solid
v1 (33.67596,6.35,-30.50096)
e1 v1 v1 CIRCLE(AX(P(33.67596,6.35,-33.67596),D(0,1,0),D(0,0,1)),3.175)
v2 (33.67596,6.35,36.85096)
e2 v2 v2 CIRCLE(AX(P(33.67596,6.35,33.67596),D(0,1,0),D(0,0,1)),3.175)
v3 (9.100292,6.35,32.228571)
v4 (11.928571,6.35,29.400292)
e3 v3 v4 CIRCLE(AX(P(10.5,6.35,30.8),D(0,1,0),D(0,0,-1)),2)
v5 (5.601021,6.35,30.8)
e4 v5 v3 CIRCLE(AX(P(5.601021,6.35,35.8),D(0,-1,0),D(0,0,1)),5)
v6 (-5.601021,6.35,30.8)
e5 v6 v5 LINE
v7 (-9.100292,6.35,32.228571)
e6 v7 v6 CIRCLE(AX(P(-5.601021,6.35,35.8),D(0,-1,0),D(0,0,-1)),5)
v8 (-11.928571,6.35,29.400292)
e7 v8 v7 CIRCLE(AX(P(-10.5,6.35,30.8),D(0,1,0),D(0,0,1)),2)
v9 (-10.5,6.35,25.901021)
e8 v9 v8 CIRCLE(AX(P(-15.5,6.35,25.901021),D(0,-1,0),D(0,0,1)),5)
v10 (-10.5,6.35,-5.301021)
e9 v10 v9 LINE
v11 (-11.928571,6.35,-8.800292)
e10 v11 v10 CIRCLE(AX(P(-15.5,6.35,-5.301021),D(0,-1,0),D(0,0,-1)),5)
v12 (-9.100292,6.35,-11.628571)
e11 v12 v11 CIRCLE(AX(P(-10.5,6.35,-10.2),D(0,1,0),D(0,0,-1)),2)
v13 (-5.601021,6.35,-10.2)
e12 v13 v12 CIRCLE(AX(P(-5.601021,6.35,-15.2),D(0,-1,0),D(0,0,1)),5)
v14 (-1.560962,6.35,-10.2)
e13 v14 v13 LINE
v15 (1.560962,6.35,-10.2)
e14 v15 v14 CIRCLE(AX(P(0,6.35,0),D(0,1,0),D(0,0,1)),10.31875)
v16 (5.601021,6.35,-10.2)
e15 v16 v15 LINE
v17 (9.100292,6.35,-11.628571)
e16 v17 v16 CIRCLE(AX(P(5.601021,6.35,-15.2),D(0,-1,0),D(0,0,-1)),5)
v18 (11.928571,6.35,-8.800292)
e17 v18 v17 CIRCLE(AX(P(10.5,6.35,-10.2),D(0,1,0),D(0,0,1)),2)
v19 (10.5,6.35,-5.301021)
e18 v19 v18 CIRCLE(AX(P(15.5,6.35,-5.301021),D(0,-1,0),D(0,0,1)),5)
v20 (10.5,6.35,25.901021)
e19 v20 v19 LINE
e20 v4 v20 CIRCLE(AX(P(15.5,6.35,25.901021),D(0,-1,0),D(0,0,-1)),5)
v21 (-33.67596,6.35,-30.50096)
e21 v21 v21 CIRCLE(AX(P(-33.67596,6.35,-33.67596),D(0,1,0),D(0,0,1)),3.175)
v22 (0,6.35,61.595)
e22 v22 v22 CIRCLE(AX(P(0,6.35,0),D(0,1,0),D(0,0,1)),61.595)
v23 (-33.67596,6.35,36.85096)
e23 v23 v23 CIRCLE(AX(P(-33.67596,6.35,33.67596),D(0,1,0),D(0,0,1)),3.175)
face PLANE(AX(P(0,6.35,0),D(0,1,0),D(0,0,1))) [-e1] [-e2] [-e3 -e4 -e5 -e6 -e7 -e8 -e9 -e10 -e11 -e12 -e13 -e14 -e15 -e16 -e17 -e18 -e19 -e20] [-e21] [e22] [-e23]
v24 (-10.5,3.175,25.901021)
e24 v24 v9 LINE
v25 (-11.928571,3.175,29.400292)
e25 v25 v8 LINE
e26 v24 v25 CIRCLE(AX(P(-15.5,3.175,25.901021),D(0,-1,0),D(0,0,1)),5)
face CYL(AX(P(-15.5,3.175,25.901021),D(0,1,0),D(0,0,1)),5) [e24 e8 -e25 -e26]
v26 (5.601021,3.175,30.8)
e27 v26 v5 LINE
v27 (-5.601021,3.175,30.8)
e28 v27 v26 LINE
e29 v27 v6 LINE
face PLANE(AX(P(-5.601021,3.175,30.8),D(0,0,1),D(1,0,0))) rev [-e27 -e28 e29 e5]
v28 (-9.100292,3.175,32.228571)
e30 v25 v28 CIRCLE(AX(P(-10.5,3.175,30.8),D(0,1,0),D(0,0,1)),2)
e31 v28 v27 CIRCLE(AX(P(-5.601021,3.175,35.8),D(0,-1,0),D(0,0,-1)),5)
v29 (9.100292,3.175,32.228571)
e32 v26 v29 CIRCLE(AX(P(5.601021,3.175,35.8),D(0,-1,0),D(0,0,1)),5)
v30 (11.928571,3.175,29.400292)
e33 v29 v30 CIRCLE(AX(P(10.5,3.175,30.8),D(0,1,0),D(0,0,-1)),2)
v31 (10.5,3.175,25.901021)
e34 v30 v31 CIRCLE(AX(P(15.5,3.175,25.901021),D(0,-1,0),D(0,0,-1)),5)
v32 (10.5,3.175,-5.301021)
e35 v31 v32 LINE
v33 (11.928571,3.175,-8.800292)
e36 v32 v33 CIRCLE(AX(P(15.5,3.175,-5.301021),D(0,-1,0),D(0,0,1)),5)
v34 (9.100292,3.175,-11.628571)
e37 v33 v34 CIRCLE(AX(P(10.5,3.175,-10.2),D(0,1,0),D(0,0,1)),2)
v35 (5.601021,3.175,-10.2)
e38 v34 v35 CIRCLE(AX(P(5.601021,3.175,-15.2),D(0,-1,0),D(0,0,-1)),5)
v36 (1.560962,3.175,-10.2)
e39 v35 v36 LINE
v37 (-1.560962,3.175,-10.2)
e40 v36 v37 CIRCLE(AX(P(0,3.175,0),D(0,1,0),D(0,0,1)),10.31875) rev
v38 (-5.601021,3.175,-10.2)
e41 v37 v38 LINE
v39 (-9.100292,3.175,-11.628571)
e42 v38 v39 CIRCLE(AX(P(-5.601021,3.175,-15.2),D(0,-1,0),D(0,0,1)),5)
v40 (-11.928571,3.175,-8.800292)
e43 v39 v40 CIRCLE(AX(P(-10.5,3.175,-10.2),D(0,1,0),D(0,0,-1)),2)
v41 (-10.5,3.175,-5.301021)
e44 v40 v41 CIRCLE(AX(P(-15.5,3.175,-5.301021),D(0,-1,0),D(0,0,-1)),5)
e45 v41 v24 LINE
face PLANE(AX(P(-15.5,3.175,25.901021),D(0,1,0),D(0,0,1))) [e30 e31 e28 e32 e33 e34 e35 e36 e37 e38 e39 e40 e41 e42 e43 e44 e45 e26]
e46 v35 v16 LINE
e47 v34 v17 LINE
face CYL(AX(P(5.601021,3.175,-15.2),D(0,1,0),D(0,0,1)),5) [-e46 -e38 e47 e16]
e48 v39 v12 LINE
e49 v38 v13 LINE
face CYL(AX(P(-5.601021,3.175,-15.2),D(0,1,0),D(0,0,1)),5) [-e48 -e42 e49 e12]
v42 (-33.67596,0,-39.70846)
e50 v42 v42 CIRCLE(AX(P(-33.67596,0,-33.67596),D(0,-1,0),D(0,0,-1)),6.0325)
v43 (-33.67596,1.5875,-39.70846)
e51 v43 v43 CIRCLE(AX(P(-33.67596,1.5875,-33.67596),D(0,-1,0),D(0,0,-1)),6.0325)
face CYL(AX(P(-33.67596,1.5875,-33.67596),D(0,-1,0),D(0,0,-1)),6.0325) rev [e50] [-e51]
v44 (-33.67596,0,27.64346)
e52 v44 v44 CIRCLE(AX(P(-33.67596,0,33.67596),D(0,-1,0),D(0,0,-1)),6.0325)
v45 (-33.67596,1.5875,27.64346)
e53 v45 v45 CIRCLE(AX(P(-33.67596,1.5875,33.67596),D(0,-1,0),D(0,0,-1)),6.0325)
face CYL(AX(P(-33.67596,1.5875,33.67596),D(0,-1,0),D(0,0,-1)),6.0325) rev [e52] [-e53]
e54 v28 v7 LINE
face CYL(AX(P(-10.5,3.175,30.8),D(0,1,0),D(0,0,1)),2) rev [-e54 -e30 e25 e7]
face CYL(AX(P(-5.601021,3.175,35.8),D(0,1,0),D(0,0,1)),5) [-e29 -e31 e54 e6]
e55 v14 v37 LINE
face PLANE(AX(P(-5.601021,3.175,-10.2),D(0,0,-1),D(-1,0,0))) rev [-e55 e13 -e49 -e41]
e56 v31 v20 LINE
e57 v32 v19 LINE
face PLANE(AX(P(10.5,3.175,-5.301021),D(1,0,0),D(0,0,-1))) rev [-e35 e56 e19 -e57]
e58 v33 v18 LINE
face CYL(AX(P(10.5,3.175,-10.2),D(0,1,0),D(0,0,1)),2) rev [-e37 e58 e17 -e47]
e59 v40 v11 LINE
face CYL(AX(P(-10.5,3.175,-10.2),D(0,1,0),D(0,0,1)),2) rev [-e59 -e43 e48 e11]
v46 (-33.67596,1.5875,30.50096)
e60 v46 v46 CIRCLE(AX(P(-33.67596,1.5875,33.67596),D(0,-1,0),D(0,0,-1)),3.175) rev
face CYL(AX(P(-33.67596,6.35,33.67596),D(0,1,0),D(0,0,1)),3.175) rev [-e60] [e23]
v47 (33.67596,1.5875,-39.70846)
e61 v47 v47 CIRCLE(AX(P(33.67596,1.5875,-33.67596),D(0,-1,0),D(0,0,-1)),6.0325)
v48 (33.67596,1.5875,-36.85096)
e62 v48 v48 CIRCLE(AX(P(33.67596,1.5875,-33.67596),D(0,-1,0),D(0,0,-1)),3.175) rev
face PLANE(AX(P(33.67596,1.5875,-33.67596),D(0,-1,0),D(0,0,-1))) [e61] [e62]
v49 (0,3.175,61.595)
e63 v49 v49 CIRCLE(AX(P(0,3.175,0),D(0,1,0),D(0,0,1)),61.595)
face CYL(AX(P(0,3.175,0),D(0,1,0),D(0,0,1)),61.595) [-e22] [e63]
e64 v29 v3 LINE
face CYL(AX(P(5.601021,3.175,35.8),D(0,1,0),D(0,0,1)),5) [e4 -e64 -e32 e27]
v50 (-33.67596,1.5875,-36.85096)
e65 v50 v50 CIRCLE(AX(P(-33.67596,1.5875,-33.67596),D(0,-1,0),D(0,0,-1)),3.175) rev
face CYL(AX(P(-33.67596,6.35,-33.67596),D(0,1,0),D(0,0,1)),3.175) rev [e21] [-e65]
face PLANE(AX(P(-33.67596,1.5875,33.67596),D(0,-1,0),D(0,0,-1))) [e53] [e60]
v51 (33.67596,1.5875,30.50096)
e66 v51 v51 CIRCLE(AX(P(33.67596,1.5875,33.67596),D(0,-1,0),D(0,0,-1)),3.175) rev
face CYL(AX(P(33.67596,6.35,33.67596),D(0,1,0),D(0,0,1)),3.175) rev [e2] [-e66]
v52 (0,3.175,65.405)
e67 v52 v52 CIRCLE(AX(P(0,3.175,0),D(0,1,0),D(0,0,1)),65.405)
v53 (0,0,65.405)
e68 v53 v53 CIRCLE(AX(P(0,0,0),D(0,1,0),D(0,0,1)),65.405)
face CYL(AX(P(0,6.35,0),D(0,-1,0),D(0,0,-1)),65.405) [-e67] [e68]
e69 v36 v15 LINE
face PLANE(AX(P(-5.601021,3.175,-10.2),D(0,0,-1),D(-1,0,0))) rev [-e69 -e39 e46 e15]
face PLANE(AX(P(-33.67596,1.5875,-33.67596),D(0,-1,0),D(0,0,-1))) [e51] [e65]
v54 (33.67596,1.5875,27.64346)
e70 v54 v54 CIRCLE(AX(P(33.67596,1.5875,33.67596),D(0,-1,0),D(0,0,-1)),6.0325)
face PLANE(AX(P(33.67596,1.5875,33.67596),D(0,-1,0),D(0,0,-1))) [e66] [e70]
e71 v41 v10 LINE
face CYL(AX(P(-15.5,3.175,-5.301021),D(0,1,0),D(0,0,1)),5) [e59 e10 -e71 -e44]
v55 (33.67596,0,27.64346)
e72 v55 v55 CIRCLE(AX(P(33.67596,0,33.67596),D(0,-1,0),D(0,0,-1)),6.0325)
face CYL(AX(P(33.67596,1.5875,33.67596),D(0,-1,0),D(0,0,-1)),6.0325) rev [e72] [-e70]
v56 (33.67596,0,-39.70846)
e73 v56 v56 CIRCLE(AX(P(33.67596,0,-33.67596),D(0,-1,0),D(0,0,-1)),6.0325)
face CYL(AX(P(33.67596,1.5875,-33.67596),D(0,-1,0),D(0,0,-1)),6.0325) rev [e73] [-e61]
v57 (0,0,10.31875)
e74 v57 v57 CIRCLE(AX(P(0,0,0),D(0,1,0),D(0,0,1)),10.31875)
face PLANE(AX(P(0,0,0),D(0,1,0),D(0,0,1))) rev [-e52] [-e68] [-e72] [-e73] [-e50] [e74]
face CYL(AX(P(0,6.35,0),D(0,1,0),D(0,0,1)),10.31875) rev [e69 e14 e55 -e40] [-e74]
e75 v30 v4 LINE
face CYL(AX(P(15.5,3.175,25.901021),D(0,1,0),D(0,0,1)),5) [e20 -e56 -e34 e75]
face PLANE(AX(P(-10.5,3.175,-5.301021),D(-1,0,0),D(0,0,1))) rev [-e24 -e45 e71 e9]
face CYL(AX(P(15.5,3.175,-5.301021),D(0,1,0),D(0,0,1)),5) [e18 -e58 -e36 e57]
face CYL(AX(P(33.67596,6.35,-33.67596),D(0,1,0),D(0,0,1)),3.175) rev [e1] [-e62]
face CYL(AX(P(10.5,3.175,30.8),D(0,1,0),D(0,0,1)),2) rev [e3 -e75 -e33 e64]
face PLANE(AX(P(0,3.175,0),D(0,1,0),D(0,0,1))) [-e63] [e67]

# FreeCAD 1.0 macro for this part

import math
import FreeCAD as App
import Part
import Sketcher

V = App.Vector
Q = App.Units.Quantity

doc = App.newDocument("Part")
body = doc.addObject("PartDesign::Body", "Body")

# Sketch on XZ plane
sketch1 = body.newObject("Sketcher::SketchObject", "Sketch")
sketch1.AttachmentSupport = (doc.getObject("XZ_Plane"), [""])
sketch1.MapMode = "FlatFace"
sketch1.addGeometry(Part.Circle(V(0, 0, 0), V(0, 0, 1), 65.405), False)
sketch1.addConstraint(Sketcher.Constraint("Coincident", 0, 3, -1, 1))
sketch1.addConstraint(Sketcher.Constraint("Diameter", 0, Q("5.15 in")))
pad1 = body.newObject("PartDesign::Pad", "Pad")
pad1.Profile = sketch1
pad1.Length = Q("0.25 in")
pad1.Reversed = True

# Sketch on XZ plane
sketch2 = body.newObject("Sketcher::SketchObject", "Sketch001")
sketch2.AttachmentSupport = (doc.getObject("XZ_Plane"), [""])
sketch2.MapMode = "FlatFace"
sketch2.AttachmentOffset = App.Placement(V(0, 0, -0.25 * 25.4), App.Rotation())
sketch2.addGeometry(Part.Circle(V(0, 0, 0), V(0, 0, 1), 65.405), False)
sketch2.addGeometry(Part.Circle(V(0, 0, 0), V(0, 0, 1), 61.595), False)
sketch2.addConstraint(Sketcher.Constraint("Coincident", 0, 3, -1, 1))
sketch2.addConstraint(Sketcher.Constraint("Coincident", 1, 3, -1, 1))
sketch2.addConstraint(Sketcher.Constraint("Diameter", 0, Q("5.15 in")))
sketch2.addConstraint(Sketcher.Constraint("Diameter", 1, Q("4.85 in")))
pocket1 = body.newObject("PartDesign::Pocket", "Pocket")
pocket1.Profile = sketch2
pocket1.Length = Q("0.125 in")
pocket1.Reversed = True

# Sketch on XZ plane
sketch3 = body.newObject("Sketcher::SketchObject", "Sketch002")
sketch3.AttachmentSupport = (doc.getObject("XZ_Plane"), [""])
sketch3.MapMode = "FlatFace"
sketch3.AttachmentOffset = App.Placement(V(0, 0, -0.25 * 25.4), App.Rotation())
sketch3.addGeometry(Part.Circle(V(-33.67596, -33.67596, 0), V(0, 0, 1), 3.175), False)
sketch3.addGeometry(Part.Circle(V(-33.67596, 33.67596, 0), V(0, 0, 1), 3.175), False)
sketch3.addGeometry(Part.Circle(V(33.67596, -33.67596, 0), V(0, 0, 1), 3.175), False)
sketch3.addGeometry(Part.Circle(V(33.67596, 33.67596, 0), V(0, 0, 1), 3.175), False)
sketch3.addConstraint(Sketcher.Constraint("Equal", 0, 1))
sketch3.addConstraint(Sketcher.Constraint("Equal", 1, 2))
sketch3.addConstraint(Sketcher.Constraint("Equal", 2, 3))
sketch3.addConstraint(Sketcher.Constraint("Symmetric", 1, 3, 2, 3, -1, 1))
sketch3.addConstraint(Sketcher.Constraint("Symmetric", 0, 3, 3, 3, -1, 1))
sketch3.addConstraint(Sketcher.Constraint("Symmetric", 0, 3, 2, 3, -2))
sketch3.addConstraint(Sketcher.Constraint("Diameter", 0, Q("0.25 in")))
sketch3.addConstraint(Sketcher.Constraint("DistanceX", 0, 3, -1, 1, 33.67596))
sketch3.addConstraint(Sketcher.Constraint("DistanceY", 0, 3, -1, 1, 33.67596))
doc.recompute()
hole = body.newObject("PartDesign::Hole", "Hole")
hole.Profile = sketch3
hole.ThreadType = "None"
hole.Diameter = Q("0.25 in")
hole.DepthType = "ThroughAll"
hole.Reversed = True

# Sketch on XZ plane
sketch4 = body.newObject("Sketcher::SketchObject", "Sketch003")
sketch4.AttachmentSupport = (doc.getObject("XZ_Plane"), [""])
sketch4.MapMode = "FlatFace"
sketch4.AttachmentOffset = App.Placement(V(0, 0, -0.25 * 25.4), App.Rotation())
sketch4.addGeometry(Part.Circle(V(0, 0, 0), V(0, 0, 1), 10.31875), False)
sketch4.addConstraint(Sketcher.Constraint("Coincident", 0, 3, -1, 1))
sketch4.addConstraint(Sketcher.Constraint("Diameter", 0, Q("0.8125 in")))
doc.recompute()
hole2 = body.newObject("PartDesign::Hole", "Hole001")
hole2.Profile = sketch4
hole2.ThreadType = "None"
hole2.Diameter = Q("0.8125 in")
hole2.DepthType = "ThroughAll"
hole2.Reversed = True

# Sketch on XZ plane
sketch5 = body.newObject("Sketcher::SketchObject", "Sketch004")
sketch5.AttachmentSupport = (doc.getObject("XZ_Plane"), [""])
sketch5.MapMode = "FlatFace"
sketch5.AttachmentOffset = App.Placement(V(0, 0, -0.25 * 25.4), App.Rotation())
sketch5.addGeometry(Part.LineSegment(V(5.601021, -10.2, 0), V(-5.601021, -10.2, 0)), False)
sketch5.addGeometry(Part.ArcOfCircle(Part.Circle(V(-5.601021, -15.2, 0), V(0, 0, 1), 5), math.radians(90), math.radians(134.415309)), False)
sketch5.addGeometry(Part.ArcOfCircle(Part.Circle(V(-10.5, -10.2, 0), V(0, 0, 1), 2), math.radians(135.584691), math.radians(314.415309)), False)
sketch5.addGeometry(Part.ArcOfCircle(Part.Circle(V(-15.5, -5.301021, 0), V(0, 0, 1), 5), math.radians(-44.415309), math.radians(0)), False)
sketch5.addGeometry(Part.LineSegment(V(-10.5, -5.301021, 0), V(-10.5, 25.901021, 0)), False)
sketch5.addGeometry(Part.ArcOfCircle(Part.Circle(V(-15.5, 25.901021, 0), V(0, 0, 1), 5), math.radians(0), math.radians(44.415309)), False)
sketch5.addGeometry(Part.ArcOfCircle(Part.Circle(V(-10.5, 30.8, 0), V(0, 0, 1), 2), math.radians(45.584691), math.radians(224.415309)), False)
sketch5.addGeometry(Part.ArcOfCircle(Part.Circle(V(-5.601021, 35.8, 0), V(0, 0, 1), 5), math.radians(-134.415309), math.radians(-90)), False)
sketch5.addGeometry(Part.LineSegment(V(-5.601021, 30.8, 0), V(5.601021, 30.8, 0)), False)
sketch5.addGeometry(Part.ArcOfCircle(Part.Circle(V(5.601021, 35.8, 0), V(0, 0, 1), 5), math.radians(-90), math.radians(-45.584691)), False)
sketch5.addGeometry(Part.ArcOfCircle(Part.Circle(V(10.5, 30.8, 0), V(0, 0, 1), 2), math.radians(-44.415309), math.radians(134.415309)), False)
sketch5.addGeometry(Part.ArcOfCircle(Part.Circle(V(15.5, 25.901021, 0), V(0, 0, 1), 5), math.radians(135.584691), math.radians(180)), False)
sketch5.addGeometry(Part.LineSegment(V(10.5, 25.901021, 0), V(10.5, -5.301021, 0)), False)
sketch5.addGeometry(Part.ArcOfCircle(Part.Circle(V(15.5, -5.301021, 0), V(0, 0, 1), 5), math.radians(180), math.radians(224.415309)), False)
sketch5.addGeometry(Part.ArcOfCircle(Part.Circle(V(10.5, -10.2, 0), V(0, 0, 1), 2), math.radians(-134.415309), math.radians(44.415309)), False)
sketch5.addGeometry(Part.ArcOfCircle(Part.Circle(V(5.601021, -15.2, 0), V(0, 0, 1), 5), math.radians(45.584691), math.radians(90)), False)
sketch5.addConstraint(Sketcher.Constraint("Tangent", 0, 2, 1, 1))
sketch5.addConstraint(Sketcher.Constraint("Tangent", 1, 2, 2, 2))
sketch5.addConstraint(Sketcher.Constraint("Tangent", 2, 1, 3, 1))
sketch5.addConstraint(Sketcher.Constraint("Tangent", 3, 2, 4, 1))
sketch5.addConstraint(Sketcher.Constraint("Tangent", 4, 2, 5, 1))
sketch5.addConstraint(Sketcher.Constraint("Tangent", 5, 2, 6, 2))
sketch5.addConstraint(Sketcher.Constraint("Tangent", 6, 1, 7, 1))
sketch5.addConstraint(Sketcher.Constraint("Tangent", 7, 2, 8, 1))
sketch5.addConstraint(Sketcher.Constraint("Tangent", 8, 2, 9, 1))
sketch5.addConstraint(Sketcher.Constraint("Tangent", 9, 2, 10, 2))
sketch5.addConstraint(Sketcher.Constraint("Tangent", 10, 1, 11, 1))
sketch5.addConstraint(Sketcher.Constraint("Tangent", 11, 2, 12, 1))
sketch5.addConstraint(Sketcher.Constraint("Tangent", 12, 2, 13, 1))
sketch5.addConstraint(Sketcher.Constraint("Tangent", 13, 2, 14, 2))
sketch5.addConstraint(Sketcher.Constraint("Tangent", 14, 1, 15, 1))
sketch5.addConstraint(Sketcher.Constraint("Tangent", 15, 2, 0, 1))
sketch5.addConstraint(Sketcher.Constraint("Horizontal", 0))
sketch5.addConstraint(Sketcher.Constraint("Vertical", 4))
sketch5.addConstraint(Sketcher.Constraint("Horizontal", 8))
sketch5.addConstraint(Sketcher.Constraint("Vertical", 12))
sketch5.addConstraint(Sketcher.Constraint("Equal", 1, 3))
sketch5.addConstraint(Sketcher.Constraint("Equal", 3, 5))
sketch5.addConstraint(Sketcher.Constraint("Equal", 2, 6))
sketch5.addConstraint(Sketcher.Constraint("Equal", 5, 7))
sketch5.addConstraint(Sketcher.Constraint("Equal", 7, 9))
sketch5.addConstraint(Sketcher.Constraint("Equal", 6, 10))
sketch5.addConstraint(Sketcher.Constraint("Equal", 9, 11))
sketch5.addConstraint(Sketcher.Constraint("Equal", 11, 13))
sketch5.addConstraint(Sketcher.Constraint("Equal", 10, 14))
sketch5.addConstraint(Sketcher.Constraint("Equal", 13, 15))
sketch5.addConstraint(Sketcher.Constraint("Symmetric", 6, 3, 10, 3, -2))
sketch5.addConstraint(Sketcher.Constraint("Symmetric", 3, 3, 13, 3, -2))
sketch5.addConstraint(Sketcher.Constraint("Horizontal", 2, 3, 14, 3))
sketch5.addConstraint(Sketcher.Constraint("Horizontal", 14, 3, 0, 2))
sketch5.addConstraint(Sketcher.Constraint("Horizontal", 10, 3, 7, 2))
sketch5.addConstraint(Sketcher.Constraint("Vertical", 2, 3, 6, 3))
sketch5.addConstraint(Sketcher.Constraint("Vertical", 6, 3, 3, 2))
sketch5.addConstraint(Sketcher.Constraint("Radius", 1, 5.0))
sketch5.addConstraint(Sketcher.Constraint("Radius", 2, 2.0))
sketch5.addConstraint(Sketcher.Constraint("DistanceY", 2, 3, 5, 3, Q("1.4213 in")))
sketch5.addConstraint(Sketcher.Constraint("DistanceX", 0, 2, 0, 1, 11.202041))
sketch5.addConstraint(Sketcher.Constraint("DistanceY", 1, 3, -1, 1, 15.2))
pocket2 = body.newObject("PartDesign::Pocket", "Pocket001")
pocket2.Profile = sketch5
pocket2.Length = Q("0.125 in")
pocket2.Reversed = True

# Sketch on XZ plane
sketch6 = body.newObject("Sketcher::SketchObject", "Sketch005")
sketch6.AttachmentSupport = (doc.getObject("XZ_Plane"), [""])
sketch6.MapMode = "FlatFace"
sketch6.addGeometry(Part.Circle(V(-33.67596, 33.67596, 0), V(0, 0, 1), 6.0325), False)
sketch6.addGeometry(Part.Circle(V(33.67596, 33.67596, 0), V(0, 0, 1), 6.0325), False)
sketch6.addGeometry(Part.Circle(V(33.67596, -33.67596, 0), V(0, 0, 1), 6.0325), False)
sketch6.addGeometry(Part.Circle(V(-33.67596, -33.67596, 0), V(0, 0, 1), 6.0325), False)
sketch6.addConstraint(Sketcher.Constraint("Equal", 0, 1))
sketch6.addConstraint(Sketcher.Constraint("Equal", 1, 2))
sketch6.addConstraint(Sketcher.Constraint("Equal", 2, 3))
sketch6.addConstraint(Sketcher.Constraint("Symmetric", 0, 3, 2, 3, -1, 1))
sketch6.addConstraint(Sketcher.Constraint("Symmetric", 1, 3, 3, 3, -1, 1))
sketch6.addConstraint(Sketcher.Constraint("Symmetric", 0, 3, 1, 3, -2))
sketch6.addConstraint(Sketcher.Constraint("Diameter", 0, Q("0.475 in")))
sketch6.addConstraint(Sketcher.Constraint("DistanceX", 0, 3, -1, 1, 33.67596))
sketch6.addConstraint(Sketcher.Constraint("DistanceY", -1, 1, 0, 3, 33.67596))
pocket3 = body.newObject("PartDesign::Pocket", "Pocket002")
pocket3.Profile = sketch6
pocket3.Length = Q("0.0625 in")

doc.recompute()
